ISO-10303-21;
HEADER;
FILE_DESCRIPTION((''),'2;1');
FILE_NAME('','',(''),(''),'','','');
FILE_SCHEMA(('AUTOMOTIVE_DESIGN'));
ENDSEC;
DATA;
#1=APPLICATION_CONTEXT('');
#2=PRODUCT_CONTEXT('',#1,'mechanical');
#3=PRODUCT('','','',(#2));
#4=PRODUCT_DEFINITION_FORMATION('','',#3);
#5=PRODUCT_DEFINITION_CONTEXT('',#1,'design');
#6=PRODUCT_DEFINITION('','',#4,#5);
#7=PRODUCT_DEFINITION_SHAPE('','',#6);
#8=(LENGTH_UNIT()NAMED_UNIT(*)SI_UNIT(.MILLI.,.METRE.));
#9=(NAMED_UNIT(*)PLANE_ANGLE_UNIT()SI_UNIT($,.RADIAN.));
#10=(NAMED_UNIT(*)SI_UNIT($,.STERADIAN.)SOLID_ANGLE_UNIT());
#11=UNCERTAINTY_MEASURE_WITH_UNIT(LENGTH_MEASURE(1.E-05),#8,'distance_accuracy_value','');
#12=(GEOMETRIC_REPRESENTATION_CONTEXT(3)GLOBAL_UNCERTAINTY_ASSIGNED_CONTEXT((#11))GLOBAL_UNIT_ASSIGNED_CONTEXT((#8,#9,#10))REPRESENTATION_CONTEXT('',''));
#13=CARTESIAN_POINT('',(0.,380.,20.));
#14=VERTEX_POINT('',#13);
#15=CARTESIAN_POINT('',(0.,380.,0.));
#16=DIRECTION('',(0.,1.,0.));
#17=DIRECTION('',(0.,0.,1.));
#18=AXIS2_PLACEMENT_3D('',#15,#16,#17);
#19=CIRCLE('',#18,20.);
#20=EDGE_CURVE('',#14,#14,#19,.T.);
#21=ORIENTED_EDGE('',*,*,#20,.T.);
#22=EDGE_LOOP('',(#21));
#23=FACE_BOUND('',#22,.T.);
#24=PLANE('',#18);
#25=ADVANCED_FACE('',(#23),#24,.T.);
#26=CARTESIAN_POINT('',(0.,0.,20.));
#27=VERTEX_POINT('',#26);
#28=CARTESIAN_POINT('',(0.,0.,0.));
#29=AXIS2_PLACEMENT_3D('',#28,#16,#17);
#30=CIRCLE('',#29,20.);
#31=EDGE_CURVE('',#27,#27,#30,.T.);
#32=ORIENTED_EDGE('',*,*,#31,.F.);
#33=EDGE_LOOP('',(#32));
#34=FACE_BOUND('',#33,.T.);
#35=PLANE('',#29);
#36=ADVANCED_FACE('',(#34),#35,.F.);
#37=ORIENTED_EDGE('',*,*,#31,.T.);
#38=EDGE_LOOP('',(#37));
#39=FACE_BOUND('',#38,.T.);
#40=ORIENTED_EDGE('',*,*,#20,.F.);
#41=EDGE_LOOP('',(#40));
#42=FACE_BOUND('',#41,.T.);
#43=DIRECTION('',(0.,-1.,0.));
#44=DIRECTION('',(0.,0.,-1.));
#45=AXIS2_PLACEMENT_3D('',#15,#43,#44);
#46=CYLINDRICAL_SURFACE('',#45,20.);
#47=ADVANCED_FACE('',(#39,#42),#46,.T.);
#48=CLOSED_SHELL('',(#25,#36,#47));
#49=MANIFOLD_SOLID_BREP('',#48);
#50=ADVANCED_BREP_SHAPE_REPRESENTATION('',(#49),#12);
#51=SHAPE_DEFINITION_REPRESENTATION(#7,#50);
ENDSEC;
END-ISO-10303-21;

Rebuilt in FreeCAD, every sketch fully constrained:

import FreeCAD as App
import Part
import Sketcher
from FreeCAD import Vector
Q = App.Units.Quantity

doc = App.newDocument("Part")
body = doc.addObject("PartDesign::Body", "Body")

# Sketch on XZ plane
sketch1 = body.newObject("Sketcher::SketchObject", "Sketch")
sketch1.AttachmentSupport = (doc.getObject("XZ_Plane"), [""])
sketch1.MapMode = "FlatFace"
sketch1.addGeometry(Part.Circle(Vector(0, 0, 0), Vector(0, 0, 1), 20), False)
sketch1.addConstraint([
    Sketcher.Constraint("Coincident", 0, 3, -1, 1),
    Sketcher.Constraint("Diameter", 0, Q("40 mm")),
])
pad1 = body.newObject("PartDesign::Pad", "Pad")
pad1.Profile = sketch1
pad1.Length = 380
pad1.Reversed = True

doc.recompute()
